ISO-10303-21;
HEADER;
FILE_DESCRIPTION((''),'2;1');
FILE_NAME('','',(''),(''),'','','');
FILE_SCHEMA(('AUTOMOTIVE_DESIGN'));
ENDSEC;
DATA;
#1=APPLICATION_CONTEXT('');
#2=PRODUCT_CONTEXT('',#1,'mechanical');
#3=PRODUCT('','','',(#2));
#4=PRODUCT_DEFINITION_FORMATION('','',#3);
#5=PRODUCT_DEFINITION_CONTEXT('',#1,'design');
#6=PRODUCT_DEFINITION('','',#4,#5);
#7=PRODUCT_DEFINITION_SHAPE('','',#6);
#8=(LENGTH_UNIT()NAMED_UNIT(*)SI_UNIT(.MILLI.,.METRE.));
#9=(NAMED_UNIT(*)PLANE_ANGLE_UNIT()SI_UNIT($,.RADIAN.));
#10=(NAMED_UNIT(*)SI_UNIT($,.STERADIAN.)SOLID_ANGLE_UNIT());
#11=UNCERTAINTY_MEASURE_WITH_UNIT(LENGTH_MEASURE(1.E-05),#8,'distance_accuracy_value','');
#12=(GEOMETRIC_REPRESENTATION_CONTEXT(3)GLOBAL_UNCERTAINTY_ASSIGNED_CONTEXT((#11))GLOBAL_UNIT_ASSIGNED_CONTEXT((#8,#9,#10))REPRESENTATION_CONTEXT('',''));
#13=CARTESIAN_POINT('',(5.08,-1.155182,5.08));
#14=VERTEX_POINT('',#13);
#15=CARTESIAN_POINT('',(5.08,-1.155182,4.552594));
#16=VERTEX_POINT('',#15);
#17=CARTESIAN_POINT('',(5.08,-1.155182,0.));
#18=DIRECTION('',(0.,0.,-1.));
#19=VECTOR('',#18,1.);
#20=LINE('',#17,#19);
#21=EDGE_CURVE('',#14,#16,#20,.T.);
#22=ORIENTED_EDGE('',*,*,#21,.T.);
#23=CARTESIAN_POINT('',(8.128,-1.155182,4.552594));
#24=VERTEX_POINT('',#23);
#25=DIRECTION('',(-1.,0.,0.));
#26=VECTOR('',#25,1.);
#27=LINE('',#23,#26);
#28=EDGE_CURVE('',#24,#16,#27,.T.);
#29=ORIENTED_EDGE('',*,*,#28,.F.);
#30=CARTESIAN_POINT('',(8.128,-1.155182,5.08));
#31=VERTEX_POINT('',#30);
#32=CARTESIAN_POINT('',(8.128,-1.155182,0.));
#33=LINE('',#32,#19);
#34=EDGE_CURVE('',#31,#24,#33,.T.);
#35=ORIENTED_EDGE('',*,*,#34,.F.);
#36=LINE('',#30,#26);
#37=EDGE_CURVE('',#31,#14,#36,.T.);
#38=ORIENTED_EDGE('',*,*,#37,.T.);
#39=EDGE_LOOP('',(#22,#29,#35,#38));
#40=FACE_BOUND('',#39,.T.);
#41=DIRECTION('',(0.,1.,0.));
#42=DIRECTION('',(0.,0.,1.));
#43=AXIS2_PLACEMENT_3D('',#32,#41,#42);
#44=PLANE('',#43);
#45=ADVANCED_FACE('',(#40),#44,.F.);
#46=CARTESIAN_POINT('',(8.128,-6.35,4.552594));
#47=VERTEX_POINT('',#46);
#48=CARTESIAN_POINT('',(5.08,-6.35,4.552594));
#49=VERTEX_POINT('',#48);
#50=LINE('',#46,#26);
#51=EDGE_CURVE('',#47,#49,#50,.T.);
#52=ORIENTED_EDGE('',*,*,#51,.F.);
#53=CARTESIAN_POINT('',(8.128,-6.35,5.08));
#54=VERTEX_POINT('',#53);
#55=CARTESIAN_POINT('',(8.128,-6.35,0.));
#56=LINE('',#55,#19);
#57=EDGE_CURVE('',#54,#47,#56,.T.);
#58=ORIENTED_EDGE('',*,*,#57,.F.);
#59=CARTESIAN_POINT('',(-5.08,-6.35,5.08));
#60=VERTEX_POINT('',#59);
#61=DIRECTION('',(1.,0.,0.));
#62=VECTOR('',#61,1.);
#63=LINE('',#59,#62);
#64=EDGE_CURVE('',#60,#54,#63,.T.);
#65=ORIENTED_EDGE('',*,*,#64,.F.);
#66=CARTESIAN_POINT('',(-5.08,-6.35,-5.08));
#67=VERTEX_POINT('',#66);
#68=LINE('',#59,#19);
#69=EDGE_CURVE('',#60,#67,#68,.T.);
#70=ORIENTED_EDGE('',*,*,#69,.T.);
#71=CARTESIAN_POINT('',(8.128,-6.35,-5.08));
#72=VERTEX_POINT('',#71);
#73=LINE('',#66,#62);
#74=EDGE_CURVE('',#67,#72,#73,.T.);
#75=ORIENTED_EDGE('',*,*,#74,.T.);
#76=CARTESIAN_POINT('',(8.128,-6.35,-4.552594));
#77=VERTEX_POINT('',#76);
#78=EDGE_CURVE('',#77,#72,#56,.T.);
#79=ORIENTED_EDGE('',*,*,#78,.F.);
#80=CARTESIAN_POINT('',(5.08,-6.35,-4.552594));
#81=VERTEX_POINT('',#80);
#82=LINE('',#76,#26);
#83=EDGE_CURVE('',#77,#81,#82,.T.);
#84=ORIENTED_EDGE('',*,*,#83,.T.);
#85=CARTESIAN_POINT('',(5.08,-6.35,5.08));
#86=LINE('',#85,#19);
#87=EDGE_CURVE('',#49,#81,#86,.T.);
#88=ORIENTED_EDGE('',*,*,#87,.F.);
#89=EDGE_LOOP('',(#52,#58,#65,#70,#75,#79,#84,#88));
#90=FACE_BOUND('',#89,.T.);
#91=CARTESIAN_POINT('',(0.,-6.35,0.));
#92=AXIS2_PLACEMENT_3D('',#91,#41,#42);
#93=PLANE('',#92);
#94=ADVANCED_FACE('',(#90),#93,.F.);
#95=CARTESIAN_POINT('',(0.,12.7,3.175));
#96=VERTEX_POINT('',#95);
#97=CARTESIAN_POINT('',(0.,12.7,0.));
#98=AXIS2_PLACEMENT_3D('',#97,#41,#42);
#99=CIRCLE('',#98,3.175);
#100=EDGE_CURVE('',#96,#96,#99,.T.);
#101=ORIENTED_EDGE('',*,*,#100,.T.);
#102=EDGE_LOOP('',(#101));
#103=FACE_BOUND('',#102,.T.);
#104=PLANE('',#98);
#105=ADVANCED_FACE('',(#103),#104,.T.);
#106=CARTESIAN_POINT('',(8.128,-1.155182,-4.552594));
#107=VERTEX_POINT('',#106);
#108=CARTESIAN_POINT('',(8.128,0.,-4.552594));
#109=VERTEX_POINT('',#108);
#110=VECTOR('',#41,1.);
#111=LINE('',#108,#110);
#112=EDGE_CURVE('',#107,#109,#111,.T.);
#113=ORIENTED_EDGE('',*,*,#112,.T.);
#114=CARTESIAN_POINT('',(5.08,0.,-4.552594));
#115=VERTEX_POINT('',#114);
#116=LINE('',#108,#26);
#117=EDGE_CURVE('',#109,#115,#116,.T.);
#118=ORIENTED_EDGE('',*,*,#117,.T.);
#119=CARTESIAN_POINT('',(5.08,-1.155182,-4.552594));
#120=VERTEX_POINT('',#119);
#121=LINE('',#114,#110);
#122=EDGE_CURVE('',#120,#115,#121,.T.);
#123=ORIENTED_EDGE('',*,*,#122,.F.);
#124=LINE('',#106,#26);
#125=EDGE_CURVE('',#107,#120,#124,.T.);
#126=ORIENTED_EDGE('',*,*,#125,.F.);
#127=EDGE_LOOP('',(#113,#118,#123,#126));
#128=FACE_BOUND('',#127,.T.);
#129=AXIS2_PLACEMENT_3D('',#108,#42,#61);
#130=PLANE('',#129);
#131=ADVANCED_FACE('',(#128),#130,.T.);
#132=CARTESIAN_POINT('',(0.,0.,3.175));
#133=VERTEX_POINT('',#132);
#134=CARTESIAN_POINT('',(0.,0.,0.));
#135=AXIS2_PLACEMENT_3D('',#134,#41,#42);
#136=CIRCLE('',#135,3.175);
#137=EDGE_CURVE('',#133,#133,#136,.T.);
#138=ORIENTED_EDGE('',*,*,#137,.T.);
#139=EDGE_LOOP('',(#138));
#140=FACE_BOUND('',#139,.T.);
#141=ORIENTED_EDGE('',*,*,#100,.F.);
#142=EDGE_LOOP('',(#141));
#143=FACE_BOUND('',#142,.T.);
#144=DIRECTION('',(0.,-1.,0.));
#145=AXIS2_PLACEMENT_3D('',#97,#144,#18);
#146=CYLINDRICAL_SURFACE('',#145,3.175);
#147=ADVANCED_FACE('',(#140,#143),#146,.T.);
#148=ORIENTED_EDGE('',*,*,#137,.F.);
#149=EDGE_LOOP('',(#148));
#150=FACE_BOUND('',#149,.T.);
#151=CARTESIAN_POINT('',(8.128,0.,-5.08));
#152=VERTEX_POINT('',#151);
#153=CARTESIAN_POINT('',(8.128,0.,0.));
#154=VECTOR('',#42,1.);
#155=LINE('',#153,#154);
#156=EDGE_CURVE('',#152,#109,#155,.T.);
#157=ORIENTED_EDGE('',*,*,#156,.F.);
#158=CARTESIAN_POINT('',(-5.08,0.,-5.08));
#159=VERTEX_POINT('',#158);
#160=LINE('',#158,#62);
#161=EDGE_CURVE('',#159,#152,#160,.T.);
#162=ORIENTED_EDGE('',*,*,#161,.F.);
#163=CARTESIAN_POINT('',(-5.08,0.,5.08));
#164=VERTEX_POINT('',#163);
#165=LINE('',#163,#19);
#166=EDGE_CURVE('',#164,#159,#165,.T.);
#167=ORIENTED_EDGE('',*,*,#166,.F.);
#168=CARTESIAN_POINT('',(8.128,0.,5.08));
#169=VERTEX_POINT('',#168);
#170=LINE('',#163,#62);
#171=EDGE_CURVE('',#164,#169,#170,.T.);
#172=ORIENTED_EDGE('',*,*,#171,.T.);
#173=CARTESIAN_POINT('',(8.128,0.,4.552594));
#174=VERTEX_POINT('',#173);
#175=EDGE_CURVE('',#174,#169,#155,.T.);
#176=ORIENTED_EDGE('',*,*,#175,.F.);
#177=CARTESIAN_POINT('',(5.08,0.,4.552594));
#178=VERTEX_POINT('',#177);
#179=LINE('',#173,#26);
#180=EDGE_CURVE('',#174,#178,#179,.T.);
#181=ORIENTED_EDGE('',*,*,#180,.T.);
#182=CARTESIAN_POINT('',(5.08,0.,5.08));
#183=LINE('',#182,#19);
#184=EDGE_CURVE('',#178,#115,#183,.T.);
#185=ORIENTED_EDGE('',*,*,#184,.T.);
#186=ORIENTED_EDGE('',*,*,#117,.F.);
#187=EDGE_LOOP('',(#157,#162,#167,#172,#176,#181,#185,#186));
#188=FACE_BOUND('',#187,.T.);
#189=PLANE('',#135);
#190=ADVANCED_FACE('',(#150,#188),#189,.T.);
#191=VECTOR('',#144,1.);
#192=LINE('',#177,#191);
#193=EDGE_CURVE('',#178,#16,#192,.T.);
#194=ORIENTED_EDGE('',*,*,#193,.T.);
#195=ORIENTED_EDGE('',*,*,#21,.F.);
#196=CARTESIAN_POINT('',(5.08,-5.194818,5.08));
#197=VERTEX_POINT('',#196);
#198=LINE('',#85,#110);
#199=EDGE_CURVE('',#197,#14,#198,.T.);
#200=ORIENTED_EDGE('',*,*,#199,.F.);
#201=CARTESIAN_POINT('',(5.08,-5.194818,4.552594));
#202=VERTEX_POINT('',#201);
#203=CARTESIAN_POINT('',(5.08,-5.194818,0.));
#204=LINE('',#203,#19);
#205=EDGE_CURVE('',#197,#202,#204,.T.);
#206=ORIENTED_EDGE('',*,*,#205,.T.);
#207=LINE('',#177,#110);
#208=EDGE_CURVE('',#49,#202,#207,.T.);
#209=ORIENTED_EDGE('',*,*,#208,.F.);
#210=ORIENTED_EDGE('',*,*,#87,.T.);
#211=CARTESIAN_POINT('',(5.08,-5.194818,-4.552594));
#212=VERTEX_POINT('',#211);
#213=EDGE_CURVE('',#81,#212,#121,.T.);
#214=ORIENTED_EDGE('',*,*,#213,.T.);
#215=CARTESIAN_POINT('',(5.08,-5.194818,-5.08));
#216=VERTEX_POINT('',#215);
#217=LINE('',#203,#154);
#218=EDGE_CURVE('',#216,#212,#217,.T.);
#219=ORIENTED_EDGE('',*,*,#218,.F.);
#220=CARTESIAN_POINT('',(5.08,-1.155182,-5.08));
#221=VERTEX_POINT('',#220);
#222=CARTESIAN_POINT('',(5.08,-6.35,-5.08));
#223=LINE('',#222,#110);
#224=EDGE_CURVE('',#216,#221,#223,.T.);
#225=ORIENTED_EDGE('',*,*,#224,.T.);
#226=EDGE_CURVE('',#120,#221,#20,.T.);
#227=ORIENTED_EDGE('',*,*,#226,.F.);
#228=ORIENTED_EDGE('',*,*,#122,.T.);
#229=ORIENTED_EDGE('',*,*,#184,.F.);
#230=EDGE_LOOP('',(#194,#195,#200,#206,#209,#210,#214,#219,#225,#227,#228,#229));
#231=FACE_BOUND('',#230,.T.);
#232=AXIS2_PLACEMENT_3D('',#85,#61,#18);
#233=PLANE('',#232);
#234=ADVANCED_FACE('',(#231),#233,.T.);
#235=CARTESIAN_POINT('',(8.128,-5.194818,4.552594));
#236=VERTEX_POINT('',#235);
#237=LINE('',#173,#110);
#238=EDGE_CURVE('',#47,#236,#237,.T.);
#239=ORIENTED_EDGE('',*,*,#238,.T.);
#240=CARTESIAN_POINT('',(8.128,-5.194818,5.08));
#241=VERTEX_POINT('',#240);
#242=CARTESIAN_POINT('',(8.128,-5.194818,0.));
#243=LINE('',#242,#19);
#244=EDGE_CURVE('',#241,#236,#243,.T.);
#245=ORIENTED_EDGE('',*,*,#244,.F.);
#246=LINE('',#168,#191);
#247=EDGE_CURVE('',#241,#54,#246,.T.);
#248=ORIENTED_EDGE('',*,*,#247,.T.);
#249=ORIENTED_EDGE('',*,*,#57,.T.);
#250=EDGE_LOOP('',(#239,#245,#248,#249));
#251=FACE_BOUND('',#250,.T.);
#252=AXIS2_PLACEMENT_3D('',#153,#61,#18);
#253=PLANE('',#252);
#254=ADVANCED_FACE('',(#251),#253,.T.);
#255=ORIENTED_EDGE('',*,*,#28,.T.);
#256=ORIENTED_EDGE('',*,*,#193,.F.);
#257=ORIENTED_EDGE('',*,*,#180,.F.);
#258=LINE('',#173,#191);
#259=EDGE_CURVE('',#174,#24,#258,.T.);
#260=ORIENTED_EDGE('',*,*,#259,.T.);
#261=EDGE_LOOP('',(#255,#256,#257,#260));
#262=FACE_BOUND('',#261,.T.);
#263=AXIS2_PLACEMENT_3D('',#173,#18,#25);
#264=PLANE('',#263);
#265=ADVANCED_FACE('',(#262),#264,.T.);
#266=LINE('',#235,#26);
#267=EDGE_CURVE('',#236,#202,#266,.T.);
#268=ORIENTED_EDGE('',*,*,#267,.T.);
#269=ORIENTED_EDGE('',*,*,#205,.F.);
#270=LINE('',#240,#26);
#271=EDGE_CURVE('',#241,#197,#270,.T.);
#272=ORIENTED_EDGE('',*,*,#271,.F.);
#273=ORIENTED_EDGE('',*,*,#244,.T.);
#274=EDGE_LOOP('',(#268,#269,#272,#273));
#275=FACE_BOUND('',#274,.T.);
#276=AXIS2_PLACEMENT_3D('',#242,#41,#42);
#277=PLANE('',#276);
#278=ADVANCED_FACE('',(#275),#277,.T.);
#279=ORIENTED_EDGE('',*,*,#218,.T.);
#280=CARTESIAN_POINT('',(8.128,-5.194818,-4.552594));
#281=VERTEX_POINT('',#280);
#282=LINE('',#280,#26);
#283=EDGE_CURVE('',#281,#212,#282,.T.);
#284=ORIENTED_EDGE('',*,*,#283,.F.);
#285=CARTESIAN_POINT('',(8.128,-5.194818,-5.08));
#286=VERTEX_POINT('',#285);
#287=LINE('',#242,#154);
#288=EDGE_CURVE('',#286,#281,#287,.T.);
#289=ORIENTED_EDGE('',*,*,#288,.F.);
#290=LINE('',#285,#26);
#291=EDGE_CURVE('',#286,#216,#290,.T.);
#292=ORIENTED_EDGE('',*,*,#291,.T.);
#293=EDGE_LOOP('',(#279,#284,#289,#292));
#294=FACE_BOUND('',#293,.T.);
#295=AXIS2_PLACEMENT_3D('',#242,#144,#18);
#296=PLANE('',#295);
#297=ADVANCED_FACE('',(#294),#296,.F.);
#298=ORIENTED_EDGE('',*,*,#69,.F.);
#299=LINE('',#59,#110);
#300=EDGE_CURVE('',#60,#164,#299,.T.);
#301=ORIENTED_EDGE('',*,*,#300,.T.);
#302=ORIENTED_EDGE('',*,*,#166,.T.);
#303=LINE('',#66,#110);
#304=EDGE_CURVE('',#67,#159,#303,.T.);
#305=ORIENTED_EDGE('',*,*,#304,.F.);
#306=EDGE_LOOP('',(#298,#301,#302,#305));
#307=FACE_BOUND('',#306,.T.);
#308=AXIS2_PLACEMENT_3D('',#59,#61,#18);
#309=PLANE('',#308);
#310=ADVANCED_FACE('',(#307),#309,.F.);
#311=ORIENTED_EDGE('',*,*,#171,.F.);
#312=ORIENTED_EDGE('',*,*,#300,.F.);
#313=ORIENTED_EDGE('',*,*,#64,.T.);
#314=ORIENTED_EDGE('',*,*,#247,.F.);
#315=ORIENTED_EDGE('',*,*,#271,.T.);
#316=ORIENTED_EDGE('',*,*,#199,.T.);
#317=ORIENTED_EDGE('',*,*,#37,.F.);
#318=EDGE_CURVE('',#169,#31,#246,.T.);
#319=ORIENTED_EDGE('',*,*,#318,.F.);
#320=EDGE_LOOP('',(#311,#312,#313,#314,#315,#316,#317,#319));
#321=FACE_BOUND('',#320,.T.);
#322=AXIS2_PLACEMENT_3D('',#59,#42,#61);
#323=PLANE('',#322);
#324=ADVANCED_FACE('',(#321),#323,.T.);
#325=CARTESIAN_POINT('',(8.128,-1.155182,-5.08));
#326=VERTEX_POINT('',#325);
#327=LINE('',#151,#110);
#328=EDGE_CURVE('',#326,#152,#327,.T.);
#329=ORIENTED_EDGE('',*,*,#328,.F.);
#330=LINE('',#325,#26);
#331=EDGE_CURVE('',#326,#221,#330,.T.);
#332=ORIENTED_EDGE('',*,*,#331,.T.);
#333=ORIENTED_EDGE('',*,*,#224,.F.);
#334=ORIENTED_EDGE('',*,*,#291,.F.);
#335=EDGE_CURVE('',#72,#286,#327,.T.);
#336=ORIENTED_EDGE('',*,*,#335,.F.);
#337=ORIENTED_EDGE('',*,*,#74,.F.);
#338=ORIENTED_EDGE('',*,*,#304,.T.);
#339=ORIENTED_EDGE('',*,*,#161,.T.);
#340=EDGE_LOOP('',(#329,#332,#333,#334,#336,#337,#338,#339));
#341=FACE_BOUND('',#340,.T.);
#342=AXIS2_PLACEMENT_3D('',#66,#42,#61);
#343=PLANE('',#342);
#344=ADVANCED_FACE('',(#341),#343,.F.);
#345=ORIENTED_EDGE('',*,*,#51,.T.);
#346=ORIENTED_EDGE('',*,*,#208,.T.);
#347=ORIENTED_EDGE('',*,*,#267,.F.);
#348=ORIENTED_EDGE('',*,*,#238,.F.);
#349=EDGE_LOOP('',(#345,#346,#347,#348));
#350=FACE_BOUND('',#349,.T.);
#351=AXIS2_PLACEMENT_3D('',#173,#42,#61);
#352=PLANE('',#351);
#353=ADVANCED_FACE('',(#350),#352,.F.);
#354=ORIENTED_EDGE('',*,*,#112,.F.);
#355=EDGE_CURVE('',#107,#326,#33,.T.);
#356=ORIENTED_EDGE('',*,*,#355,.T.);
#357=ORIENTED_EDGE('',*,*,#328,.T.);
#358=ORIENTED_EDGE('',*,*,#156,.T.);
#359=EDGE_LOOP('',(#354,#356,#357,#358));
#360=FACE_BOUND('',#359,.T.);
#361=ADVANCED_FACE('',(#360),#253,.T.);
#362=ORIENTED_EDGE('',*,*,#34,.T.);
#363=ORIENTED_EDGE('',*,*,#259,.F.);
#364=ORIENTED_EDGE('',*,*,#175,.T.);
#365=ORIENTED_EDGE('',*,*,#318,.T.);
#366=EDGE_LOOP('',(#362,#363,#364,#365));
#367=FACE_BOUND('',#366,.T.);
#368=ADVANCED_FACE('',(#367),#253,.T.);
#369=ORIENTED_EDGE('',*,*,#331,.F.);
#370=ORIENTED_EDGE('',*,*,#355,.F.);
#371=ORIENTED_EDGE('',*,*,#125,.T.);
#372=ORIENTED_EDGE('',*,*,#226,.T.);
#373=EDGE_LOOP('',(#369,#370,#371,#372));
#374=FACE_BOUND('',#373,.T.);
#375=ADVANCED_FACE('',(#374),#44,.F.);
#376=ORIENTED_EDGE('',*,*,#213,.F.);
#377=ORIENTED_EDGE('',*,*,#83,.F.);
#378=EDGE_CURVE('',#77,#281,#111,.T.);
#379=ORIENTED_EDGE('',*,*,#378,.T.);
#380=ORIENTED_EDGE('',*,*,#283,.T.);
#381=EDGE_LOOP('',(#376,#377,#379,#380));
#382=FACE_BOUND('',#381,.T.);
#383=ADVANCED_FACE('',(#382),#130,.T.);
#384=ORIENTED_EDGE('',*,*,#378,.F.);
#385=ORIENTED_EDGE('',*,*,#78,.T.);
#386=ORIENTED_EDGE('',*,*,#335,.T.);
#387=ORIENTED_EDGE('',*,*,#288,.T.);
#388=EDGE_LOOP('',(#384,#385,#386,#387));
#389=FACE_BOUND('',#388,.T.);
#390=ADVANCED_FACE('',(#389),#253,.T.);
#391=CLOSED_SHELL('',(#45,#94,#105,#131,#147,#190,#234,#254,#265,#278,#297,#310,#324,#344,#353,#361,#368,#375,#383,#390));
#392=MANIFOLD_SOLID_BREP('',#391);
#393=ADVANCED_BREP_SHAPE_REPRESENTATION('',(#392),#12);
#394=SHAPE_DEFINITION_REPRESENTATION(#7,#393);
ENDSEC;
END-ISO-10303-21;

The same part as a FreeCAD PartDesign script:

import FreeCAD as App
import Part
import Sketcher

V = App.Vector
Q = App.Units.Quantity


def add_polygon(sketch, points):
    """Adds a closed chain of lines whose ends are joined by coincident constraints."""
    first, n = sketch.GeometryCount, len(points)
    for a, b in zip(points, points[1:] + points[:1]):
        sketch.addGeometry(Part.LineSegment(App.Vector(*a, 0), App.Vector(*b, 0)), False)
    for i in range(n):
        sketch.addConstraint(Sketcher.Constraint("Coincident", first + i, 2, first + (i + 1) % n, 1))

doc = App.newDocument("Part")
params = doc.addObject("Spreadsheet::Sheet", "Params")
for row, (alias, value) in enumerate([
    ("sketch1_diameter", "0.25 in"),
    ("pad1_length", "0.5 in"),
    ("sketch2_width", "0.4 in"),
    ("pad2_length", "0.25 in"),
    ("pad3_length", "0.12 in"),
], start=1):
    params.set(f"A{row}", alias)
    params.set(f"B{row}", "=" + value)
    params.setAlias(f"B{row}", alias)

body = doc.addObject("PartDesign::Body", "Body")

sketch1 = body.newObject("Sketcher::SketchObject", "Sketch")
sketch1.AttachmentSupport = (doc.getObject("XZ_Plane"), [""])
sketch1.MapMode = "FlatFace"
sketch1.addGeometry(Part.Circle(V(0, 0, 0), V(0, 0, 1), 3.2), False)
sketch1.addConstraint(Sketcher.Constraint("Coincident", 0, 3, -1, 1))
sketch1.addConstraint(Sketcher.Constraint("Diameter", 0, Q("0.25 in")))
sketch1.setExpression("Constraints[1]", "Params.sketch1_diameter")
pad1 = body.newObject("PartDesign::Pad", "Pad")
pad1.Profile = sketch1
pad1.setExpression("Length", "Params.pad1_length")
pad1.Reversed = True

sketch2 = body.newObject("Sketcher::SketchObject", "Sketch001")
sketch2.AttachmentSupport = (doc.getObject("XZ_Plane"), [""])
sketch2.MapMode = "FlatFace"
add_polygon(sketch2, [(-5, -5), (-5, 5), (5, 5), (5, -5)])
sketch2.addConstraint(Sketcher.Constraint("Vertical", 0))
sketch2.addConstraint(Sketcher.Constraint("Horizontal", 1))
sketch2.addConstraint(Sketcher.Constraint("Vertical", 2))
sketch2.addConstraint(Sketcher.Constraint("Horizontal", 3))
sketch2.addConstraint(Sketcher.Constraint("Symmetric", 0, 2, 2, 2, -1, 1))
sketch2.addConstraint(Sketcher.Constraint("Equal", 3, 0))
sketch2.addConstraint(Sketcher.Constraint("DistanceX", 1, 1, 1, 2, Q("0.4 in")))
sketch2.setExpression("Constraints[10]", "Params.sketch2_width")
pad2 = body.newObject("PartDesign::Pad", "Pad001")
pad2.Profile = sketch2
pad2.setExpression("Length", "Params.pad2_length")

sketch3 = body.newObject("Sketcher::SketchObject", "Sketch002")
sketch3.AttachmentSupport = (doc.getObject("YZ_Plane"), [""])
sketch3.MapMode = "FlatFace"
sketch3.AttachmentOffset = App.Placement(V(0, 0, 0.2 * 25.4), App.Rotation())
add_polygon(sketch3, [(0, 5.1), (-1.2, 5.1), (-1.2, 4.6), (0, 4.6)])
add_polygon(sketch3, [(0, -4.6), (-1.2, -4.6), (-1.2, -5.1), (0, -5.1)])
add_polygon(sketch3, [(-5.2, -4.6), (-6.3, -4.6), (-6.3, -5.1), (-5.2, -5.1)])
add_polygon(sketch3, [(-5.2, 5.1), (-6.3, 5.1), (-6.3, 4.6), (-5.2, 4.6)])
sketch3.addConstraint(Sketcher.Constraint("Horizontal", 0))
sketch3.addConstraint(Sketcher.Constraint("Vertical", 1))
sketch3.addConstraint(Sketcher.Constraint("Horizontal", 2))
sketch3.addConstraint(Sketcher.Constraint("Vertical", 3))
sketch3.addConstraint(Sketcher.Constraint("Horizontal", 4))
sketch3.addConstraint(Sketcher.Constraint("Vertical", 5))
sketch3.addConstraint(Sketcher.Constraint("Horizontal", 6))
sketch3.addConstraint(Sketcher.Constraint("Vertical", 7))
sketch3.addConstraint(Sketcher.Constraint("Horizontal", 8))
sketch3.addConstraint(Sketcher.Constraint("Vertical", 9))
sketch3.addConstraint(Sketcher.Constraint("Horizontal", 10))
sketch3.addConstraint(Sketcher.Constraint("Vertical", 11))
sketch3.addConstraint(Sketcher.Constraint("Horizontal", 12))
sketch3.addConstraint(Sketcher.Constraint("Vertical", 13))
sketch3.addConstraint(Sketcher.Constraint("Horizontal", 14))
sketch3.addConstraint(Sketcher.Constraint("Vertical", 15))
sketch3.addConstraint(Sketcher.Constraint("Symmetric", 3, 2, 6, 2, -1, 1))
sketch3.addConstraint(Sketcher.Constraint("Symmetric", 1, 2, 4, 2, -1))
sketch3.addConstraint(Sketcher.Constraint("Symmetric", 9, 2, 12, 2, -1))
sketch3.addConstraint(Sketcher.Constraint("Symmetric", 11, 2, 14, 2, -1))
sketch3.addConstraint(Sketcher.Constraint("PointOnObject", 2, 2, -2))
sketch3.addConstraint(Sketcher.Constraint("Horizontal", 7, 2, 8, 2))
sketch3.addConstraint(Sketcher.Constraint("Horizontal", 6, 2, 9, 2))
sketch3.addConstraint(Sketcher.Constraint("Equal", 6, 8))
sketch3.addConstraint(Sketcher.Constraint("DistanceY", -1, 1, 0, 2, Q("0.2 in")))
sketch3.addConstraint(Sketcher.Constraint("DistanceX", 8, 2, -1, 1, Q("0.25 in")))
sketch3.addConstraint(Sketcher.Constraint("DistanceX", 0, 2, 0, 1, Q("1.155182 mm")))
sketch3.addConstraint(Sketcher.Constraint("DistanceY", 1, 2, 1, 1, Q("0.527406 mm")))
pad3 = body.newObject("PartDesign::Pad", "Pad002")
pad3.Profile = sketch3
pad3.setExpression("Length", "Params.pad3_length")

doc.recompute()
